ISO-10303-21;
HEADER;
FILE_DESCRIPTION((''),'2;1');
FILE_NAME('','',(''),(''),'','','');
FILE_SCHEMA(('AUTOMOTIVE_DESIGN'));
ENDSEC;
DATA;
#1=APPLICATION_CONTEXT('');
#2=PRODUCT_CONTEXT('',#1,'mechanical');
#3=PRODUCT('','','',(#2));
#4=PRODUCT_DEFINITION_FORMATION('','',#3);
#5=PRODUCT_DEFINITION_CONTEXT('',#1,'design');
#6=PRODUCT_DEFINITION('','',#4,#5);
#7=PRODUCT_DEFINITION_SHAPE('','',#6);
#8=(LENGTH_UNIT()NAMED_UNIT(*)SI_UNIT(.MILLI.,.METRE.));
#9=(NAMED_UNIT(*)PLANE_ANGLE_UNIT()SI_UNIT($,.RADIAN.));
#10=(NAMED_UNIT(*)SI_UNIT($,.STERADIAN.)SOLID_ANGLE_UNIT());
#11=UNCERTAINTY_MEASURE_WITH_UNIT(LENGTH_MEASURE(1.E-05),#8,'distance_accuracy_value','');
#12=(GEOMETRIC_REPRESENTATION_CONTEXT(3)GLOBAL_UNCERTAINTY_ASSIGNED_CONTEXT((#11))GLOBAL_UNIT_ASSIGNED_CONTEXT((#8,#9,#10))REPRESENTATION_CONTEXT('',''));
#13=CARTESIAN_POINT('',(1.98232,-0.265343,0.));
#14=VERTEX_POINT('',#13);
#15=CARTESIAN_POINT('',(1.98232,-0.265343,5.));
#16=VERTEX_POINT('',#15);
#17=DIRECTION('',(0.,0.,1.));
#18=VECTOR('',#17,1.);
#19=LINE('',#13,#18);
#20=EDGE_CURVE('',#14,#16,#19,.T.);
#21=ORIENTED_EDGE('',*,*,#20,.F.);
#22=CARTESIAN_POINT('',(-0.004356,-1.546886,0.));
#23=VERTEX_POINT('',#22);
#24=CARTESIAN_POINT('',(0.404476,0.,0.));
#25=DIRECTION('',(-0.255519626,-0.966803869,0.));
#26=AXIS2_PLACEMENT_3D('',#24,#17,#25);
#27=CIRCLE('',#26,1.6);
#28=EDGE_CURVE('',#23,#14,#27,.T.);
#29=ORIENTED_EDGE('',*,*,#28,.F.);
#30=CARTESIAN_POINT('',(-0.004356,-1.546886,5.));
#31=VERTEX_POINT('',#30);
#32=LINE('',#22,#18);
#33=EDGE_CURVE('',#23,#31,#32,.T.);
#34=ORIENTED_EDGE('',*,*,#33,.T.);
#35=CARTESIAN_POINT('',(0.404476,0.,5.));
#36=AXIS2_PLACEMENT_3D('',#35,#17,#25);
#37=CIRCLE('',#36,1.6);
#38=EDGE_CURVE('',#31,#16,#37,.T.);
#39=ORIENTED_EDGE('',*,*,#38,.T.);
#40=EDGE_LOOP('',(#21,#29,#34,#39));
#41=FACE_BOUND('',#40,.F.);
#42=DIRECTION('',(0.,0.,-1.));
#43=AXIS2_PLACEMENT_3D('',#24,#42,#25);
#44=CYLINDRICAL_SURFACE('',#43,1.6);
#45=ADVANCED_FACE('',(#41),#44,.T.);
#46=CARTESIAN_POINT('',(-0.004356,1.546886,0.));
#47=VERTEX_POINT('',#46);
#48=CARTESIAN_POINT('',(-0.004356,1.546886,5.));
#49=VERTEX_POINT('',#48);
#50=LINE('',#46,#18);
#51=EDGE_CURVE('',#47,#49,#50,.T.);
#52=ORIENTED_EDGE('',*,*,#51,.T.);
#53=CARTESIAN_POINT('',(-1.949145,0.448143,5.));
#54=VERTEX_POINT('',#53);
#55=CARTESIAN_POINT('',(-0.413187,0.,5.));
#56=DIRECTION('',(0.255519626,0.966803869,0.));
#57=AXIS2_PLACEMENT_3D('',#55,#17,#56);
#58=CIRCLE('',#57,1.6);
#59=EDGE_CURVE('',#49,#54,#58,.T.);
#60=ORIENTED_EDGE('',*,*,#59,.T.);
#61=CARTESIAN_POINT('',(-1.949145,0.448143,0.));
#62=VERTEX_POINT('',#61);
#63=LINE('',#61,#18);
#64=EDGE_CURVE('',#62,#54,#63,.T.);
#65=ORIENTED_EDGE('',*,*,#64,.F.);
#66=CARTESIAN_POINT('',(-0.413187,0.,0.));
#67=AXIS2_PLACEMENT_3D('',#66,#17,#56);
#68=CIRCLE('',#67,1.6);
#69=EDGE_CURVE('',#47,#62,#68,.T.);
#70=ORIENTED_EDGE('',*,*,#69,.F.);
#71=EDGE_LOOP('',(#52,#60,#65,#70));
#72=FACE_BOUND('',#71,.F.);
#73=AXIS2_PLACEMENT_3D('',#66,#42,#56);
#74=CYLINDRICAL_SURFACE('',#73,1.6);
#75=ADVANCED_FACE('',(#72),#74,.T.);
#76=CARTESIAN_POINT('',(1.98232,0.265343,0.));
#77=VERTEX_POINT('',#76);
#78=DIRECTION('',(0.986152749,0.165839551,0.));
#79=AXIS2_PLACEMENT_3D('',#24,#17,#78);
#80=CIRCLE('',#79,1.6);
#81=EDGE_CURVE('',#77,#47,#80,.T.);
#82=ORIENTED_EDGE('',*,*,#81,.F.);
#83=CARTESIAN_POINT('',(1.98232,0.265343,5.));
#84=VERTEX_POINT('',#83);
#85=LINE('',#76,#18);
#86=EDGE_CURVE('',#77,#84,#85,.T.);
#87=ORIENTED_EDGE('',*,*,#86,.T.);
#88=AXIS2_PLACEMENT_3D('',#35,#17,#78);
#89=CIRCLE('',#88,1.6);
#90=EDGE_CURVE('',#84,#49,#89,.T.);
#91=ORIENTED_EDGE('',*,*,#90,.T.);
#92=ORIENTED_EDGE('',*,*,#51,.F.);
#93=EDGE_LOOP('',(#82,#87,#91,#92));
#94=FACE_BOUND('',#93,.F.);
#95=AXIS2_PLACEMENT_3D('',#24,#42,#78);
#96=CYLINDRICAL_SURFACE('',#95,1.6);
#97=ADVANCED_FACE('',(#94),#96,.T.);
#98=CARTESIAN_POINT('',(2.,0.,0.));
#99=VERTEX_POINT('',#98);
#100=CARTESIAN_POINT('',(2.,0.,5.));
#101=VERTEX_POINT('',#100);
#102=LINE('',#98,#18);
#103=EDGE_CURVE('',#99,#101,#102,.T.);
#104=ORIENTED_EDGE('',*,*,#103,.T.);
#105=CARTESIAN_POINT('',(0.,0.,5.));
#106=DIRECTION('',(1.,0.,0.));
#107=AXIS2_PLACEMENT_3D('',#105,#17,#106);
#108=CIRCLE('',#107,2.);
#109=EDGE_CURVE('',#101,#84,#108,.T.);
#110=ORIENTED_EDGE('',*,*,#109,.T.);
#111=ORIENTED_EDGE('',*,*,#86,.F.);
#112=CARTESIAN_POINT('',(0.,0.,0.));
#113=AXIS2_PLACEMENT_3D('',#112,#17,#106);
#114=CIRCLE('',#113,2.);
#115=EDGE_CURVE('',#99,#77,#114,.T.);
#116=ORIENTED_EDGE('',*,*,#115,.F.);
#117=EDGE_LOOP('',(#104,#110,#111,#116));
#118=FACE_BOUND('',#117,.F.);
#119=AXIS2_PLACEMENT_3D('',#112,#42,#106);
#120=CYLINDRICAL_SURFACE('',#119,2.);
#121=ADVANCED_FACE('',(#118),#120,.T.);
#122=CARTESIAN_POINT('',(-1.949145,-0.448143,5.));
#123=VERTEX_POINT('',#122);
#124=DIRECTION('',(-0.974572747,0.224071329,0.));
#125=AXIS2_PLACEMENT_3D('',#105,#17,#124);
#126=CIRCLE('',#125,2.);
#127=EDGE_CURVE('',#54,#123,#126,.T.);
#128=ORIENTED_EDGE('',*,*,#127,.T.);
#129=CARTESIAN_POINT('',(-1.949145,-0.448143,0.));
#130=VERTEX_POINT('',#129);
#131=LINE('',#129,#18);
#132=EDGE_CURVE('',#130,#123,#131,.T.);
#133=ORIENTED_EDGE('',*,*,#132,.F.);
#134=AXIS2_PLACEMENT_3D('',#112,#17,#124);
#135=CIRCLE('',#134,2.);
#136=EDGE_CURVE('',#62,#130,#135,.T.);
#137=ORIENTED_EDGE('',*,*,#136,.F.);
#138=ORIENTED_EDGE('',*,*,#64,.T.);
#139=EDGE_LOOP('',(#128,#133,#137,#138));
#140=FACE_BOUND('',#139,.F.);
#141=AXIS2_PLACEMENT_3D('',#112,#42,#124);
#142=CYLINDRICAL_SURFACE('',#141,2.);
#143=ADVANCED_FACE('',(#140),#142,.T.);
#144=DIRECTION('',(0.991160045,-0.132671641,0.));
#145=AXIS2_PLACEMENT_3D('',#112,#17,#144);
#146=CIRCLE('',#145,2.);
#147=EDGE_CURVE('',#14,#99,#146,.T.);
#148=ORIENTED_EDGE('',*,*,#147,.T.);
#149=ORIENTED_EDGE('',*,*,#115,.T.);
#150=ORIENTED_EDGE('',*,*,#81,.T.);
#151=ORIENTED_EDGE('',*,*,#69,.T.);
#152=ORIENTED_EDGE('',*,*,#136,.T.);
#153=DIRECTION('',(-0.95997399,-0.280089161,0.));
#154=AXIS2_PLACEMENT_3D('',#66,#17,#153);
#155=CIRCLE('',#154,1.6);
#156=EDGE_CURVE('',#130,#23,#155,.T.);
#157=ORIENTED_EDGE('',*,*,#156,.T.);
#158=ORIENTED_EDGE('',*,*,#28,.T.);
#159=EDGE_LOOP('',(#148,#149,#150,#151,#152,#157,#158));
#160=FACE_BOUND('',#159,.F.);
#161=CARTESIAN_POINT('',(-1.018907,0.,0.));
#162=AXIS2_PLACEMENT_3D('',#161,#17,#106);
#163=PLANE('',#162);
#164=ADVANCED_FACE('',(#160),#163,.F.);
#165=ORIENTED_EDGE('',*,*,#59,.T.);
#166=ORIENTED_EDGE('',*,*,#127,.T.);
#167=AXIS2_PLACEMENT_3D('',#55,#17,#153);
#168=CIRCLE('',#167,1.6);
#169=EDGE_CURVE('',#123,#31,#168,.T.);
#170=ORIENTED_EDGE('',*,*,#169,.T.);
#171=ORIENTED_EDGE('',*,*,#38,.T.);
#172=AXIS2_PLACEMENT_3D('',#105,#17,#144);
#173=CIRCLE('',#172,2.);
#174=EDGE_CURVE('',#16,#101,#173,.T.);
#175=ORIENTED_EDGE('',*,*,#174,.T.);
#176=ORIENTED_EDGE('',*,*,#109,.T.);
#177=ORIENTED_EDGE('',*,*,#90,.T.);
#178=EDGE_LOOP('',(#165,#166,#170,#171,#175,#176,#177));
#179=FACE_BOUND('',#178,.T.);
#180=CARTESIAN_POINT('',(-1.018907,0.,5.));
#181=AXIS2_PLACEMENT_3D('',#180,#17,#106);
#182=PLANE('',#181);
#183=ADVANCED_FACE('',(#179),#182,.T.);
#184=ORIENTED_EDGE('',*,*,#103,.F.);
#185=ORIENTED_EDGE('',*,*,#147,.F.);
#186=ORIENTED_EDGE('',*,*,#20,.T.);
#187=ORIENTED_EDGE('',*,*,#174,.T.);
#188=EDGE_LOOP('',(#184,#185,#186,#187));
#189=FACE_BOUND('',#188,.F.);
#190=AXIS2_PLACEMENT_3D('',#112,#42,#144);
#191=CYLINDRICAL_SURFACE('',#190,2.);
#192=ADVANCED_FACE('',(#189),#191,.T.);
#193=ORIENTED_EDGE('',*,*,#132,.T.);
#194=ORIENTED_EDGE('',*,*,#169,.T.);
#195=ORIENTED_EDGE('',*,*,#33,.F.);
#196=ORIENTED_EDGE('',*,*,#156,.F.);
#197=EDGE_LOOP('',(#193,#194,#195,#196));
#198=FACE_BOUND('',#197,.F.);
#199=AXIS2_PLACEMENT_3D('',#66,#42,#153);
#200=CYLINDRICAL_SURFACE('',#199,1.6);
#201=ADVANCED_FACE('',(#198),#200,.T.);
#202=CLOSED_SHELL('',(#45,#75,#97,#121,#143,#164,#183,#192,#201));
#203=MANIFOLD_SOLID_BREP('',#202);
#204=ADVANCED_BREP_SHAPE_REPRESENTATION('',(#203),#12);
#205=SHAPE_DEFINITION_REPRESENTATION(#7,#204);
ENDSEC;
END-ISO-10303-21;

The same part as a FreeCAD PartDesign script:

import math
import FreeCAD as App
import Part
import Sketcher

V = App.Vector

doc = App.newDocument("Part")
params = doc.addObject("Spreadsheet::Sheet", "Params")
for row, (alias, value) in enumerate([
    ("sketch1_radius", "2 mm"),
    ("sketch1_radius2", "1.6 mm"),
    ("pad1_length", "5 mm"),
], start=1):
    params.set(f"A{row}", alias)
    params.set(f"B{row}", "=" + value)
    params.setAlias(f"B{row}", alias)

body = doc.addObject("PartDesign::Body", "Body")

sketch1 = body.newObject("Sketcher::SketchObject", "Sketch")
sketch1.AttachmentSupport = (doc.getObject("XY_Plane"), [""])
sketch1.MapMode = "FlatFace"
sketch1.addGeometry([
    Part.ArcOfCircle(Part.Circle(V(-0.413187, 0, 0), V(0, 0, 1), 1.6), math.radians(75.195622), math.radians(163.734474)),
    Part.ArcOfCircle(Part.Circle(V(0, 0, 0), V(0, 0, 1), 2), math.radians(167.051725), math.radians(192.948275)),
    Part.ArcOfCircle(Part.Circle(V(-0.413187, 0, 0), V(0, 0, 1), 1.6), math.radians(-163.734474), math.radians(-75.195622)),
    Part.ArcOfCircle(Part.Circle(V(0.404476, 0, 0), V(0, 0, 1), 1.6), math.radians(-104.804378), math.radians(-9.546009)),
    Part.ArcOfCircle(Part.Circle(V(0, 0, 0), V(0, 0, 1), 2), math.radians(-7.624004), math.radians(0)),
    Part.ArcOfCircle(Part.Circle(V(0, 0, 0), V(0, 0, 1), 2), math.radians(0), math.radians(7.624004)),
    Part.ArcOfCircle(Part.Circle(V(0.404476, 0, 0), V(0, 0, 1), 1.6), math.radians(9.546009), math.radians(104.804378)),
], False)
sketch1.addConstraint([
    Sketcher.Constraint("Coincident", 0, 2, 1, 1),
    Sketcher.Constraint("Coincident", 1, 2, 2, 1),
    Sketcher.Constraint("Coincident", 2, 2, 3, 1),
    Sketcher.Constraint("Coincident", 3, 2, 4, 1),
    Sketcher.Constraint("Tangent", 4, 2, 5, 1),
    Sketcher.Constraint("Coincident", 5, 2, 6, 1),
    Sketcher.Constraint("Coincident", 6, 2, 0, 1),
    Sketcher.Constraint("Coincident", 1, 3, -1, 1),
    Sketcher.Constraint("Coincident", 4, 3, -1, 1),
    Sketcher.Constraint("Coincident", 2, 3, 0, 3),
    Sketcher.Constraint("Coincident", 6, 3, 3, 3),
    Sketcher.Constraint("Equal", 0, 2),
    Sketcher.Constraint("Equal", 2, 3),
    Sketcher.Constraint("Equal", 1, 4),
    Sketcher.Constraint("Equal", 4, 5),
    Sketcher.Constraint("Equal", 3, 6),
    Sketcher.Constraint("Symmetric", 2, 2, 6, 2, -1),
    Sketcher.Constraint("PointOnObject", 4, 2, -1),
    Sketcher.Constraint("Radius", 1, 2.0),
    Sketcher.Constraint("Radius", 0, 1.6),
    Sketcher.Constraint("DistanceX", -1, 1, 3, 2, 1.98232),
    Sketcher.Constraint("DistanceX", 0, 2, 0, 3, 1.535958),
])
sketch1.setExpression("Constraints[18]", "Params.sketch1_radius")
sketch1.setExpression("Constraints[19]", "Params.sketch1_radius2")
pad1 = body.newObject("PartDesign::Pad", "Pad")
pad1.Profile = sketch1
pad1.setExpression("Length", "Params.pad1_length")

doc.recompute()
